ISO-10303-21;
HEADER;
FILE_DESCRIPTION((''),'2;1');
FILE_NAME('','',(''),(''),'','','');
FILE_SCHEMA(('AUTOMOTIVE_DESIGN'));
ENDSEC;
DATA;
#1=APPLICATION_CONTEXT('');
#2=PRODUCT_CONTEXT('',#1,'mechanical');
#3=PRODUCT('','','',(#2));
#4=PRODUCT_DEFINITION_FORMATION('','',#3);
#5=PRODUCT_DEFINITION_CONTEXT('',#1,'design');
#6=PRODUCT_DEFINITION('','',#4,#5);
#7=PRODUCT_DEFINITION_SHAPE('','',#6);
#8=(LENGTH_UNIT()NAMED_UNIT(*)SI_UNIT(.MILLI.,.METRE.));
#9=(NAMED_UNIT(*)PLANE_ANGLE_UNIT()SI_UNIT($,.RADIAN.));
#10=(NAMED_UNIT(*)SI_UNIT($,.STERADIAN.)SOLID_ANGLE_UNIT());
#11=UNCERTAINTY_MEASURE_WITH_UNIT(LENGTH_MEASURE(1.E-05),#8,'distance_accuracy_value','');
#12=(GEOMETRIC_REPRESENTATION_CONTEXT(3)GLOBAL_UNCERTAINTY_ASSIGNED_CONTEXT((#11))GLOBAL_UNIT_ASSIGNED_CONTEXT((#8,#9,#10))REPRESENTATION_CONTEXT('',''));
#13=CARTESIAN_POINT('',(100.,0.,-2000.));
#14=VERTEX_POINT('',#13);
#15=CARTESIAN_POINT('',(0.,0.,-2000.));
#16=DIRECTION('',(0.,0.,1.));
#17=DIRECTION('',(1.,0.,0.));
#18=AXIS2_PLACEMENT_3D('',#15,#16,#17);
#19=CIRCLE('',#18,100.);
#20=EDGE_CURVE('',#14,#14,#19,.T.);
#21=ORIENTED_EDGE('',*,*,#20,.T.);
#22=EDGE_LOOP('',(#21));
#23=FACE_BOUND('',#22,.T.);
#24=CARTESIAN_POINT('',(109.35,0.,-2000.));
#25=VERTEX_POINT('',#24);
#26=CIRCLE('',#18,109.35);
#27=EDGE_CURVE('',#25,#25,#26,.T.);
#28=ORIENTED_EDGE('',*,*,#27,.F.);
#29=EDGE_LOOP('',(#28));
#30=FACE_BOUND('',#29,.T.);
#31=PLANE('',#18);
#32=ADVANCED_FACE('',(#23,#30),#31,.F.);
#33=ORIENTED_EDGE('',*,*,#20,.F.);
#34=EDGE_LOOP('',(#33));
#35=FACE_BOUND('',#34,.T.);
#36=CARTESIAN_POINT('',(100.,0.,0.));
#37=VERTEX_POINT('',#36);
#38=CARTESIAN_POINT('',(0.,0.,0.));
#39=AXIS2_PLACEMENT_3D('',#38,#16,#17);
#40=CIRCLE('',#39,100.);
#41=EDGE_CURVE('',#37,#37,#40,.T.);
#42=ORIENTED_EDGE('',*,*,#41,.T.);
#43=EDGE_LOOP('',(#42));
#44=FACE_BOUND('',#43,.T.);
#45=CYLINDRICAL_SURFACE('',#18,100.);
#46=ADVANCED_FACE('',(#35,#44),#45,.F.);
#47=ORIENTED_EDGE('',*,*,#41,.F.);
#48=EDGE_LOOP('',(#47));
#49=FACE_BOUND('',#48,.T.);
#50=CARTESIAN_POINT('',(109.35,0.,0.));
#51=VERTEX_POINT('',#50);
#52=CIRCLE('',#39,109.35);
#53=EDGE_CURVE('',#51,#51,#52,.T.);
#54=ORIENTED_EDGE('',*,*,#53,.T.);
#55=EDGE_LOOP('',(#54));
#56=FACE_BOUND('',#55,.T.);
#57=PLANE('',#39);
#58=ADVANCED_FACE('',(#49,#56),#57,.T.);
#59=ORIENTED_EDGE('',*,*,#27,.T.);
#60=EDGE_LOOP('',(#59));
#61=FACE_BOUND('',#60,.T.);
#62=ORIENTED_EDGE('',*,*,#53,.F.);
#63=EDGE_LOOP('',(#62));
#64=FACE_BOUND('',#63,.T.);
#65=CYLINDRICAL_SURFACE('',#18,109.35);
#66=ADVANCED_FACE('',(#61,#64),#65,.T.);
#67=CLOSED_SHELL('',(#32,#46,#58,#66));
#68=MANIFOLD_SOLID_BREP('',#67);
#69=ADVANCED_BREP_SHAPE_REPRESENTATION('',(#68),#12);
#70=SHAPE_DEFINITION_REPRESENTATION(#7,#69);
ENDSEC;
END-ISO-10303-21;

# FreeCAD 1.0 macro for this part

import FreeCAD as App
import Part
import Sketcher

V = App.Vector
Q = App.Units.Quantity

doc = App.newDocument("Part")
body = doc.addObject("PartDesign::Body", "Body")

sketch1 = body.newObject("Sketcher::SketchObject", "Sketch")
sketch1.AttachmentSupport = (doc.getObject("XY_Plane"), [""])
sketch1.MapMode = "FlatFace"
sketch1.addGeometry([
    Part.Circle(V(0, 0, 0), V(0, 0, 1), 109),
    Part.Circle(V(0, 0, 0), V(0, 0, 1), 100),
], False)
sketch1.addConstraint([
    Sketcher.Constraint("Coincident", 0, 3, -1, 1),
    Sketcher.Constraint("Coincident", 1, 3, -1, 1),
    Sketcher.Constraint("Diameter", 1, Q("200 mm")),
    Sketcher.Constraint("Diameter", 0, Q("218.7 mm")),
])
pad1 = body.newObject("PartDesign::Pad", "Pad")
pad1.Profile = sketch1
pad1.Length = 2000
pad1.Reversed = True

doc.recompute()
